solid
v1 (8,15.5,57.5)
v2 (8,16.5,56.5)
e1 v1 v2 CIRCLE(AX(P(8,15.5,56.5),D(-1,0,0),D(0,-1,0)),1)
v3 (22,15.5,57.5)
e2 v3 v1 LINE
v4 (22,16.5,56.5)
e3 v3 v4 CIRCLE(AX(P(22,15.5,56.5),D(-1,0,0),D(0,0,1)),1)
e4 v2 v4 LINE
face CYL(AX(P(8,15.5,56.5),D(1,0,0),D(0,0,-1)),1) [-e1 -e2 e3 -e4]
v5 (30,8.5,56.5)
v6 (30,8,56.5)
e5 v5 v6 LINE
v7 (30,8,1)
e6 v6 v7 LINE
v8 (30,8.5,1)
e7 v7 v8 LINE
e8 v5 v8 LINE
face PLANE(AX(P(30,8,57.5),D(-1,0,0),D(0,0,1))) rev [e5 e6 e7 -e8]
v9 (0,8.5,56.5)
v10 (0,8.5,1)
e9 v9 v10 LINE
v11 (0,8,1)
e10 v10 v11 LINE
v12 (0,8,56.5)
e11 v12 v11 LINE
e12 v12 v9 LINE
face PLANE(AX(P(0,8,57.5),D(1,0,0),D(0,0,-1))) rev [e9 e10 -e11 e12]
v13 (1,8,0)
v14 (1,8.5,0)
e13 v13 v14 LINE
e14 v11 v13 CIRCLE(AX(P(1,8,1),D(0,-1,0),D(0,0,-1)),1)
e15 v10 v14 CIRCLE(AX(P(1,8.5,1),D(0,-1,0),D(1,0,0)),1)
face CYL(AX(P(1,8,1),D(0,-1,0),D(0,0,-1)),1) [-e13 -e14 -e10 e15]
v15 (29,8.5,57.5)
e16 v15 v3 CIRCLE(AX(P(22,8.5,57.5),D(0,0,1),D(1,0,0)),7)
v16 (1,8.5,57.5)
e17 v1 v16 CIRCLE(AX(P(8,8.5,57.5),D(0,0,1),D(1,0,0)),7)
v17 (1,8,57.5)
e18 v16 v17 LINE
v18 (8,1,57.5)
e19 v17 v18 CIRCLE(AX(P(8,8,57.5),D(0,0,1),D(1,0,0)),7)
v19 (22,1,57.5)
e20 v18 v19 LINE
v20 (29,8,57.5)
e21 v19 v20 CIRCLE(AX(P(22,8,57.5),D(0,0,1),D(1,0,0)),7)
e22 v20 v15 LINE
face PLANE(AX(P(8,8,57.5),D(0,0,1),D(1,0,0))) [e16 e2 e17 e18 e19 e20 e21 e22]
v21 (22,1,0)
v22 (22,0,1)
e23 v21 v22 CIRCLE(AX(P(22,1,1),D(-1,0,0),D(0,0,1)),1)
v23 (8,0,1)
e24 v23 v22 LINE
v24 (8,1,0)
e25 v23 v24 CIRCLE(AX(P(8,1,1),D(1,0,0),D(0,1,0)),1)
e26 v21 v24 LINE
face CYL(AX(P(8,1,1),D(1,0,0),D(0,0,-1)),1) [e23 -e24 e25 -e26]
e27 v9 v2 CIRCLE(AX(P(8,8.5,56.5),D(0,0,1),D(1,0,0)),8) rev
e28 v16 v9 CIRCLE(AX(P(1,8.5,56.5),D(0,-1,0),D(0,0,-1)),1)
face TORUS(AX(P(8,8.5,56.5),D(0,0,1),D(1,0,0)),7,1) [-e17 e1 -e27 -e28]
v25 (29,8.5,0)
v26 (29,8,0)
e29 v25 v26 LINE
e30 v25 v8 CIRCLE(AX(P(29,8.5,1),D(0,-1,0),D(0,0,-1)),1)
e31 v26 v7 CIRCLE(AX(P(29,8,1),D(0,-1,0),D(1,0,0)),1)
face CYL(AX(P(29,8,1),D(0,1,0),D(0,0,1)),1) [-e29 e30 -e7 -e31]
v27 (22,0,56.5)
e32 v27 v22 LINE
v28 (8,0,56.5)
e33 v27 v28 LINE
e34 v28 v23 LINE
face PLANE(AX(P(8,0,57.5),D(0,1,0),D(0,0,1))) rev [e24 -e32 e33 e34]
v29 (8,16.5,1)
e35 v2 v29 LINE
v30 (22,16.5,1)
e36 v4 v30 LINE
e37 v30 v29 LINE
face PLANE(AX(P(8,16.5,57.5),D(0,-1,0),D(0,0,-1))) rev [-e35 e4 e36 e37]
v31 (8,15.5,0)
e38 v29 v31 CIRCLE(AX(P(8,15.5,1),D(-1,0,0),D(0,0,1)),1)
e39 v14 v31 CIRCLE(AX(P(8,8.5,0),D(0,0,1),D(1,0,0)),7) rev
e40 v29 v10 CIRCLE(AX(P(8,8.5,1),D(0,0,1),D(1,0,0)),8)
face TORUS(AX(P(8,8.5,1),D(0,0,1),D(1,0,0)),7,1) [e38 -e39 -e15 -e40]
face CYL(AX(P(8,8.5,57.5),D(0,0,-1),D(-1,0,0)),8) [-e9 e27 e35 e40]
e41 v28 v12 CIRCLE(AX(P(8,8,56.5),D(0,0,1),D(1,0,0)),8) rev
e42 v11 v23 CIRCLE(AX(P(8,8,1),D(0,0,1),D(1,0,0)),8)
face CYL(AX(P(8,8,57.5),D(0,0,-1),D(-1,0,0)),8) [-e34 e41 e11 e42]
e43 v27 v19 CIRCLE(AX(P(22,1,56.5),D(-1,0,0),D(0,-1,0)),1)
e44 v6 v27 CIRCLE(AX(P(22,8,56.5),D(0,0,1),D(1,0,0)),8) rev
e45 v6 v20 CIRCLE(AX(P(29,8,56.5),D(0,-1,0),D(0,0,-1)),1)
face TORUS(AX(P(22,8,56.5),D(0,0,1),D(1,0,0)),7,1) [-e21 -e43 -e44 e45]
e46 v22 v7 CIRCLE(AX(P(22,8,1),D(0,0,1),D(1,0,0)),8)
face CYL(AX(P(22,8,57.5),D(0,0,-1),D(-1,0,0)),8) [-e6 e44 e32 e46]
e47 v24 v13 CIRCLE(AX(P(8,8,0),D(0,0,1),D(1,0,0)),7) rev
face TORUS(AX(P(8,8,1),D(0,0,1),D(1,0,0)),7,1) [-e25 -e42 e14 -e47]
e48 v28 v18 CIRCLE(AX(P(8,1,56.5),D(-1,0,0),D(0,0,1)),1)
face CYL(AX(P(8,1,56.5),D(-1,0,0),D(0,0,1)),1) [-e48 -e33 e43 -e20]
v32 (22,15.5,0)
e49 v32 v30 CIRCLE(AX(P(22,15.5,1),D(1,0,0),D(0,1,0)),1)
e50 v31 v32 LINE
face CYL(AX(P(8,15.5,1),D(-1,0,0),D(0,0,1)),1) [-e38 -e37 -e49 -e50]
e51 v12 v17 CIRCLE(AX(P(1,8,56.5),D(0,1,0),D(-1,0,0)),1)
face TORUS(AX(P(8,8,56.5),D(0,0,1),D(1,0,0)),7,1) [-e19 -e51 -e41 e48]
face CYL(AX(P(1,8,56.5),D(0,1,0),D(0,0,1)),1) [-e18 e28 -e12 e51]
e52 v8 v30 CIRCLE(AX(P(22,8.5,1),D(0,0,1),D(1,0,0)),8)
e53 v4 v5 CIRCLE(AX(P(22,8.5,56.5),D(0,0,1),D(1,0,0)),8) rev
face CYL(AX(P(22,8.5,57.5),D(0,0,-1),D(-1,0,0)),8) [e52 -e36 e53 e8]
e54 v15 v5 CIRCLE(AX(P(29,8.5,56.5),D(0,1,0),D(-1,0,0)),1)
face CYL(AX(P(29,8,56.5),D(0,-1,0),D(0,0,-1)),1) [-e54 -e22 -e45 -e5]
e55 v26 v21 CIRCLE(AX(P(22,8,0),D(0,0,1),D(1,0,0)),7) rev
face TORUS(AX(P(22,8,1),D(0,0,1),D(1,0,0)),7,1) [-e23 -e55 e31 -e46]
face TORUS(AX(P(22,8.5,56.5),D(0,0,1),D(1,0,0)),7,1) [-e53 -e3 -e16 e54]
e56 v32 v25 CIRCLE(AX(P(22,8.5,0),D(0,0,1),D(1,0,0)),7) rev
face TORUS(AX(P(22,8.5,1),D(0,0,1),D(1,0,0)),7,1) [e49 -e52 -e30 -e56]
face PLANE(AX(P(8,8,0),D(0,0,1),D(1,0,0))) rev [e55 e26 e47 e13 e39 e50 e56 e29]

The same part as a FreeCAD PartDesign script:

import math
import FreeCAD as App
import Part
import Sketcher
from FreeCAD import Vector
Q = App.Units.Quantity


def edges_at(feature, points):
    """Names of the edges that pass closest to the given points."""
    edges = feature.Shape.Edges
    near = lambda p: min(range(len(edges)), key=lambda i: edges[i].distToShape(Part.Vertex(*p))[0])
    return sorted({f"Edge{near(p) + 1}" for p in points})

doc = App.newDocument("Part")
params = doc.addObject("Spreadsheet::Sheet", "Params")
for row, (alias, value) in enumerate([
    ("sketch1_radius", "8 mm"),
    ("sketch1_width", "14 mm"),
    ("sketch1_height", "0.5 mm"),
    ("pad1_length", "57.5 mm"),
    ("fillet_radius", "1 mm"),
], start=1):
    params.set(f"A{row}", alias)
    params.set(f"B{row}", "=" + value)
    params.setAlias(f"B{row}", alias)

body = doc.addObject("PartDesign::Body", "Body")

sketch1 = body.newObject("Sketcher::SketchObject", "Sketch")
sketch1.AttachmentSupport = (doc.getObject("XY_Plane"), [""])
sketch1.MapMode = "FlatFace"
sketch1.addGeometry(Part.LineSegment(Vector(8, 0, 0), Vector(22, 0, 0)), False)
sketch1.addGeometry(Part.ArcOfCircle(Part.Circle(Vector(22, 8, 0), Vector(0, 0, 1), 8), math.radians(-90), math.radians(0)), False)
sketch1.addGeometry(Part.LineSegment(Vector(30, 8, 0), Vector(30, 8.5, 0)), False)
sketch1.addGeometry(Part.ArcOfCircle(Part.Circle(Vector(22, 8.5, 0), Vector(0, 0, 1), 8), math.radians(0), math.radians(90)), False)
sketch1.addGeometry(Part.LineSegment(Vector(22, 16.5, 0), Vector(8, 16.5, 0)), False)
sketch1.addGeometry(Part.ArcOfCircle(Part.Circle(Vector(8, 8.5, 0), Vector(0, 0, 1), 8), math.radians(90), math.radians(180)), False)
sketch1.addGeometry(Part.LineSegment(Vector(0, 8.5, 0), Vector(0, 8, 0)), False)
sketch1.addGeometry(Part.ArcOfCircle(Part.Circle(Vector(8, 8, 0), Vector(0, 0, 1), 8), math.radians(-180), math.radians(-90)), False)
sketch1.addConstraint(Sketcher.Constraint("Tangent", 0, 2, 1, 1))
sketch1.addConstraint(Sketcher.Constraint("Tangent", 1, 2, 2, 1))
sketch1.addConstraint(Sketcher.Constraint("Tangent", 2, 2, 3, 1))
sketch1.addConstraint(Sketcher.Constraint("Tangent", 3, 2, 4, 1))
sketch1.addConstraint(Sketcher.Constraint("Tangent", 4, 2, 5, 1))
sketch1.addConstraint(Sketcher.Constraint("Tangent", 5, 2, 6, 1))
sketch1.addConstraint(Sketcher.Constraint("Tangent", 6, 2, 7, 1))
sketch1.addConstraint(Sketcher.Constraint("Tangent", 7, 2, 0, 1))
sketch1.addConstraint(Sketcher.Constraint("Horizontal", 0))
sketch1.addConstraint(Sketcher.Constraint("Vertical", 2))
sketch1.addConstraint(Sketcher.Constraint("Horizontal", 4))
sketch1.addConstraint(Sketcher.Constraint("Vertical", 6))
sketch1.addConstraint(Sketcher.Constraint("Equal", 1, 3))
sketch1.addConstraint(Sketcher.Constraint("Equal", 3, 5))
sketch1.addConstraint(Sketcher.Constraint("Equal", 5, 7))
sketch1.addConstraint(Sketcher.Constraint("PointOnObject", 0, 2, -1))
sketch1.addConstraint(Sketcher.Constraint("PointOnObject", 5, 2, -2))
sketch1.addConstraint(Sketcher.Constraint("Radius", 1, Q("8 mm")))
sketch1.addConstraint(Sketcher.Constraint("DistanceX", 0, 1, 0, 2, Q("14 mm")))
sketch1.addConstraint(Sketcher.Constraint("DistanceY", 2, 1, 2, 2, Q("0.5 mm")))
sketch1.setExpression("Constraints[17]", "Params.sketch1_radius")
sketch1.setExpression("Constraints[18]", "Params.sketch1_width")
sketch1.setExpression("Constraints[19]", "Params.sketch1_height")
pad1 = body.newObject("PartDesign::Pad", "Pad")
pad1.Profile = sketch1
pad1.setExpression("Length", "Params.pad1_length")
doc.recompute()

fillet = body.newObject("PartDesign::Fillet", "Fillet")
fillet.Base = (pad1, edges_at(pad1, [
    (27.657, 2.343, 57.5),
    (15, 0, 0),
    (2.343, 2.343, 0),
    (30, 8.25, 57.5),
    (27.657, 14.157, 57.5),
    (15, 16.5, 57.5),
    (2.343, 14.157, 57.5),
    (0, 8.25, 57.5),
    (2.343, 2.343, 57.5),
    (15, 0, 57.5),
    (0, 8.25, 0),
    (2.343, 14.157, 0),
    (15, 16.5, 0),
    (27.657, 14.157, 0),
    (30, 8.25, 0),
    (27.657, 2.343, 0),
]))
fillet.setExpression("Radius", "Params.fillet_radius")

doc.recompute()
